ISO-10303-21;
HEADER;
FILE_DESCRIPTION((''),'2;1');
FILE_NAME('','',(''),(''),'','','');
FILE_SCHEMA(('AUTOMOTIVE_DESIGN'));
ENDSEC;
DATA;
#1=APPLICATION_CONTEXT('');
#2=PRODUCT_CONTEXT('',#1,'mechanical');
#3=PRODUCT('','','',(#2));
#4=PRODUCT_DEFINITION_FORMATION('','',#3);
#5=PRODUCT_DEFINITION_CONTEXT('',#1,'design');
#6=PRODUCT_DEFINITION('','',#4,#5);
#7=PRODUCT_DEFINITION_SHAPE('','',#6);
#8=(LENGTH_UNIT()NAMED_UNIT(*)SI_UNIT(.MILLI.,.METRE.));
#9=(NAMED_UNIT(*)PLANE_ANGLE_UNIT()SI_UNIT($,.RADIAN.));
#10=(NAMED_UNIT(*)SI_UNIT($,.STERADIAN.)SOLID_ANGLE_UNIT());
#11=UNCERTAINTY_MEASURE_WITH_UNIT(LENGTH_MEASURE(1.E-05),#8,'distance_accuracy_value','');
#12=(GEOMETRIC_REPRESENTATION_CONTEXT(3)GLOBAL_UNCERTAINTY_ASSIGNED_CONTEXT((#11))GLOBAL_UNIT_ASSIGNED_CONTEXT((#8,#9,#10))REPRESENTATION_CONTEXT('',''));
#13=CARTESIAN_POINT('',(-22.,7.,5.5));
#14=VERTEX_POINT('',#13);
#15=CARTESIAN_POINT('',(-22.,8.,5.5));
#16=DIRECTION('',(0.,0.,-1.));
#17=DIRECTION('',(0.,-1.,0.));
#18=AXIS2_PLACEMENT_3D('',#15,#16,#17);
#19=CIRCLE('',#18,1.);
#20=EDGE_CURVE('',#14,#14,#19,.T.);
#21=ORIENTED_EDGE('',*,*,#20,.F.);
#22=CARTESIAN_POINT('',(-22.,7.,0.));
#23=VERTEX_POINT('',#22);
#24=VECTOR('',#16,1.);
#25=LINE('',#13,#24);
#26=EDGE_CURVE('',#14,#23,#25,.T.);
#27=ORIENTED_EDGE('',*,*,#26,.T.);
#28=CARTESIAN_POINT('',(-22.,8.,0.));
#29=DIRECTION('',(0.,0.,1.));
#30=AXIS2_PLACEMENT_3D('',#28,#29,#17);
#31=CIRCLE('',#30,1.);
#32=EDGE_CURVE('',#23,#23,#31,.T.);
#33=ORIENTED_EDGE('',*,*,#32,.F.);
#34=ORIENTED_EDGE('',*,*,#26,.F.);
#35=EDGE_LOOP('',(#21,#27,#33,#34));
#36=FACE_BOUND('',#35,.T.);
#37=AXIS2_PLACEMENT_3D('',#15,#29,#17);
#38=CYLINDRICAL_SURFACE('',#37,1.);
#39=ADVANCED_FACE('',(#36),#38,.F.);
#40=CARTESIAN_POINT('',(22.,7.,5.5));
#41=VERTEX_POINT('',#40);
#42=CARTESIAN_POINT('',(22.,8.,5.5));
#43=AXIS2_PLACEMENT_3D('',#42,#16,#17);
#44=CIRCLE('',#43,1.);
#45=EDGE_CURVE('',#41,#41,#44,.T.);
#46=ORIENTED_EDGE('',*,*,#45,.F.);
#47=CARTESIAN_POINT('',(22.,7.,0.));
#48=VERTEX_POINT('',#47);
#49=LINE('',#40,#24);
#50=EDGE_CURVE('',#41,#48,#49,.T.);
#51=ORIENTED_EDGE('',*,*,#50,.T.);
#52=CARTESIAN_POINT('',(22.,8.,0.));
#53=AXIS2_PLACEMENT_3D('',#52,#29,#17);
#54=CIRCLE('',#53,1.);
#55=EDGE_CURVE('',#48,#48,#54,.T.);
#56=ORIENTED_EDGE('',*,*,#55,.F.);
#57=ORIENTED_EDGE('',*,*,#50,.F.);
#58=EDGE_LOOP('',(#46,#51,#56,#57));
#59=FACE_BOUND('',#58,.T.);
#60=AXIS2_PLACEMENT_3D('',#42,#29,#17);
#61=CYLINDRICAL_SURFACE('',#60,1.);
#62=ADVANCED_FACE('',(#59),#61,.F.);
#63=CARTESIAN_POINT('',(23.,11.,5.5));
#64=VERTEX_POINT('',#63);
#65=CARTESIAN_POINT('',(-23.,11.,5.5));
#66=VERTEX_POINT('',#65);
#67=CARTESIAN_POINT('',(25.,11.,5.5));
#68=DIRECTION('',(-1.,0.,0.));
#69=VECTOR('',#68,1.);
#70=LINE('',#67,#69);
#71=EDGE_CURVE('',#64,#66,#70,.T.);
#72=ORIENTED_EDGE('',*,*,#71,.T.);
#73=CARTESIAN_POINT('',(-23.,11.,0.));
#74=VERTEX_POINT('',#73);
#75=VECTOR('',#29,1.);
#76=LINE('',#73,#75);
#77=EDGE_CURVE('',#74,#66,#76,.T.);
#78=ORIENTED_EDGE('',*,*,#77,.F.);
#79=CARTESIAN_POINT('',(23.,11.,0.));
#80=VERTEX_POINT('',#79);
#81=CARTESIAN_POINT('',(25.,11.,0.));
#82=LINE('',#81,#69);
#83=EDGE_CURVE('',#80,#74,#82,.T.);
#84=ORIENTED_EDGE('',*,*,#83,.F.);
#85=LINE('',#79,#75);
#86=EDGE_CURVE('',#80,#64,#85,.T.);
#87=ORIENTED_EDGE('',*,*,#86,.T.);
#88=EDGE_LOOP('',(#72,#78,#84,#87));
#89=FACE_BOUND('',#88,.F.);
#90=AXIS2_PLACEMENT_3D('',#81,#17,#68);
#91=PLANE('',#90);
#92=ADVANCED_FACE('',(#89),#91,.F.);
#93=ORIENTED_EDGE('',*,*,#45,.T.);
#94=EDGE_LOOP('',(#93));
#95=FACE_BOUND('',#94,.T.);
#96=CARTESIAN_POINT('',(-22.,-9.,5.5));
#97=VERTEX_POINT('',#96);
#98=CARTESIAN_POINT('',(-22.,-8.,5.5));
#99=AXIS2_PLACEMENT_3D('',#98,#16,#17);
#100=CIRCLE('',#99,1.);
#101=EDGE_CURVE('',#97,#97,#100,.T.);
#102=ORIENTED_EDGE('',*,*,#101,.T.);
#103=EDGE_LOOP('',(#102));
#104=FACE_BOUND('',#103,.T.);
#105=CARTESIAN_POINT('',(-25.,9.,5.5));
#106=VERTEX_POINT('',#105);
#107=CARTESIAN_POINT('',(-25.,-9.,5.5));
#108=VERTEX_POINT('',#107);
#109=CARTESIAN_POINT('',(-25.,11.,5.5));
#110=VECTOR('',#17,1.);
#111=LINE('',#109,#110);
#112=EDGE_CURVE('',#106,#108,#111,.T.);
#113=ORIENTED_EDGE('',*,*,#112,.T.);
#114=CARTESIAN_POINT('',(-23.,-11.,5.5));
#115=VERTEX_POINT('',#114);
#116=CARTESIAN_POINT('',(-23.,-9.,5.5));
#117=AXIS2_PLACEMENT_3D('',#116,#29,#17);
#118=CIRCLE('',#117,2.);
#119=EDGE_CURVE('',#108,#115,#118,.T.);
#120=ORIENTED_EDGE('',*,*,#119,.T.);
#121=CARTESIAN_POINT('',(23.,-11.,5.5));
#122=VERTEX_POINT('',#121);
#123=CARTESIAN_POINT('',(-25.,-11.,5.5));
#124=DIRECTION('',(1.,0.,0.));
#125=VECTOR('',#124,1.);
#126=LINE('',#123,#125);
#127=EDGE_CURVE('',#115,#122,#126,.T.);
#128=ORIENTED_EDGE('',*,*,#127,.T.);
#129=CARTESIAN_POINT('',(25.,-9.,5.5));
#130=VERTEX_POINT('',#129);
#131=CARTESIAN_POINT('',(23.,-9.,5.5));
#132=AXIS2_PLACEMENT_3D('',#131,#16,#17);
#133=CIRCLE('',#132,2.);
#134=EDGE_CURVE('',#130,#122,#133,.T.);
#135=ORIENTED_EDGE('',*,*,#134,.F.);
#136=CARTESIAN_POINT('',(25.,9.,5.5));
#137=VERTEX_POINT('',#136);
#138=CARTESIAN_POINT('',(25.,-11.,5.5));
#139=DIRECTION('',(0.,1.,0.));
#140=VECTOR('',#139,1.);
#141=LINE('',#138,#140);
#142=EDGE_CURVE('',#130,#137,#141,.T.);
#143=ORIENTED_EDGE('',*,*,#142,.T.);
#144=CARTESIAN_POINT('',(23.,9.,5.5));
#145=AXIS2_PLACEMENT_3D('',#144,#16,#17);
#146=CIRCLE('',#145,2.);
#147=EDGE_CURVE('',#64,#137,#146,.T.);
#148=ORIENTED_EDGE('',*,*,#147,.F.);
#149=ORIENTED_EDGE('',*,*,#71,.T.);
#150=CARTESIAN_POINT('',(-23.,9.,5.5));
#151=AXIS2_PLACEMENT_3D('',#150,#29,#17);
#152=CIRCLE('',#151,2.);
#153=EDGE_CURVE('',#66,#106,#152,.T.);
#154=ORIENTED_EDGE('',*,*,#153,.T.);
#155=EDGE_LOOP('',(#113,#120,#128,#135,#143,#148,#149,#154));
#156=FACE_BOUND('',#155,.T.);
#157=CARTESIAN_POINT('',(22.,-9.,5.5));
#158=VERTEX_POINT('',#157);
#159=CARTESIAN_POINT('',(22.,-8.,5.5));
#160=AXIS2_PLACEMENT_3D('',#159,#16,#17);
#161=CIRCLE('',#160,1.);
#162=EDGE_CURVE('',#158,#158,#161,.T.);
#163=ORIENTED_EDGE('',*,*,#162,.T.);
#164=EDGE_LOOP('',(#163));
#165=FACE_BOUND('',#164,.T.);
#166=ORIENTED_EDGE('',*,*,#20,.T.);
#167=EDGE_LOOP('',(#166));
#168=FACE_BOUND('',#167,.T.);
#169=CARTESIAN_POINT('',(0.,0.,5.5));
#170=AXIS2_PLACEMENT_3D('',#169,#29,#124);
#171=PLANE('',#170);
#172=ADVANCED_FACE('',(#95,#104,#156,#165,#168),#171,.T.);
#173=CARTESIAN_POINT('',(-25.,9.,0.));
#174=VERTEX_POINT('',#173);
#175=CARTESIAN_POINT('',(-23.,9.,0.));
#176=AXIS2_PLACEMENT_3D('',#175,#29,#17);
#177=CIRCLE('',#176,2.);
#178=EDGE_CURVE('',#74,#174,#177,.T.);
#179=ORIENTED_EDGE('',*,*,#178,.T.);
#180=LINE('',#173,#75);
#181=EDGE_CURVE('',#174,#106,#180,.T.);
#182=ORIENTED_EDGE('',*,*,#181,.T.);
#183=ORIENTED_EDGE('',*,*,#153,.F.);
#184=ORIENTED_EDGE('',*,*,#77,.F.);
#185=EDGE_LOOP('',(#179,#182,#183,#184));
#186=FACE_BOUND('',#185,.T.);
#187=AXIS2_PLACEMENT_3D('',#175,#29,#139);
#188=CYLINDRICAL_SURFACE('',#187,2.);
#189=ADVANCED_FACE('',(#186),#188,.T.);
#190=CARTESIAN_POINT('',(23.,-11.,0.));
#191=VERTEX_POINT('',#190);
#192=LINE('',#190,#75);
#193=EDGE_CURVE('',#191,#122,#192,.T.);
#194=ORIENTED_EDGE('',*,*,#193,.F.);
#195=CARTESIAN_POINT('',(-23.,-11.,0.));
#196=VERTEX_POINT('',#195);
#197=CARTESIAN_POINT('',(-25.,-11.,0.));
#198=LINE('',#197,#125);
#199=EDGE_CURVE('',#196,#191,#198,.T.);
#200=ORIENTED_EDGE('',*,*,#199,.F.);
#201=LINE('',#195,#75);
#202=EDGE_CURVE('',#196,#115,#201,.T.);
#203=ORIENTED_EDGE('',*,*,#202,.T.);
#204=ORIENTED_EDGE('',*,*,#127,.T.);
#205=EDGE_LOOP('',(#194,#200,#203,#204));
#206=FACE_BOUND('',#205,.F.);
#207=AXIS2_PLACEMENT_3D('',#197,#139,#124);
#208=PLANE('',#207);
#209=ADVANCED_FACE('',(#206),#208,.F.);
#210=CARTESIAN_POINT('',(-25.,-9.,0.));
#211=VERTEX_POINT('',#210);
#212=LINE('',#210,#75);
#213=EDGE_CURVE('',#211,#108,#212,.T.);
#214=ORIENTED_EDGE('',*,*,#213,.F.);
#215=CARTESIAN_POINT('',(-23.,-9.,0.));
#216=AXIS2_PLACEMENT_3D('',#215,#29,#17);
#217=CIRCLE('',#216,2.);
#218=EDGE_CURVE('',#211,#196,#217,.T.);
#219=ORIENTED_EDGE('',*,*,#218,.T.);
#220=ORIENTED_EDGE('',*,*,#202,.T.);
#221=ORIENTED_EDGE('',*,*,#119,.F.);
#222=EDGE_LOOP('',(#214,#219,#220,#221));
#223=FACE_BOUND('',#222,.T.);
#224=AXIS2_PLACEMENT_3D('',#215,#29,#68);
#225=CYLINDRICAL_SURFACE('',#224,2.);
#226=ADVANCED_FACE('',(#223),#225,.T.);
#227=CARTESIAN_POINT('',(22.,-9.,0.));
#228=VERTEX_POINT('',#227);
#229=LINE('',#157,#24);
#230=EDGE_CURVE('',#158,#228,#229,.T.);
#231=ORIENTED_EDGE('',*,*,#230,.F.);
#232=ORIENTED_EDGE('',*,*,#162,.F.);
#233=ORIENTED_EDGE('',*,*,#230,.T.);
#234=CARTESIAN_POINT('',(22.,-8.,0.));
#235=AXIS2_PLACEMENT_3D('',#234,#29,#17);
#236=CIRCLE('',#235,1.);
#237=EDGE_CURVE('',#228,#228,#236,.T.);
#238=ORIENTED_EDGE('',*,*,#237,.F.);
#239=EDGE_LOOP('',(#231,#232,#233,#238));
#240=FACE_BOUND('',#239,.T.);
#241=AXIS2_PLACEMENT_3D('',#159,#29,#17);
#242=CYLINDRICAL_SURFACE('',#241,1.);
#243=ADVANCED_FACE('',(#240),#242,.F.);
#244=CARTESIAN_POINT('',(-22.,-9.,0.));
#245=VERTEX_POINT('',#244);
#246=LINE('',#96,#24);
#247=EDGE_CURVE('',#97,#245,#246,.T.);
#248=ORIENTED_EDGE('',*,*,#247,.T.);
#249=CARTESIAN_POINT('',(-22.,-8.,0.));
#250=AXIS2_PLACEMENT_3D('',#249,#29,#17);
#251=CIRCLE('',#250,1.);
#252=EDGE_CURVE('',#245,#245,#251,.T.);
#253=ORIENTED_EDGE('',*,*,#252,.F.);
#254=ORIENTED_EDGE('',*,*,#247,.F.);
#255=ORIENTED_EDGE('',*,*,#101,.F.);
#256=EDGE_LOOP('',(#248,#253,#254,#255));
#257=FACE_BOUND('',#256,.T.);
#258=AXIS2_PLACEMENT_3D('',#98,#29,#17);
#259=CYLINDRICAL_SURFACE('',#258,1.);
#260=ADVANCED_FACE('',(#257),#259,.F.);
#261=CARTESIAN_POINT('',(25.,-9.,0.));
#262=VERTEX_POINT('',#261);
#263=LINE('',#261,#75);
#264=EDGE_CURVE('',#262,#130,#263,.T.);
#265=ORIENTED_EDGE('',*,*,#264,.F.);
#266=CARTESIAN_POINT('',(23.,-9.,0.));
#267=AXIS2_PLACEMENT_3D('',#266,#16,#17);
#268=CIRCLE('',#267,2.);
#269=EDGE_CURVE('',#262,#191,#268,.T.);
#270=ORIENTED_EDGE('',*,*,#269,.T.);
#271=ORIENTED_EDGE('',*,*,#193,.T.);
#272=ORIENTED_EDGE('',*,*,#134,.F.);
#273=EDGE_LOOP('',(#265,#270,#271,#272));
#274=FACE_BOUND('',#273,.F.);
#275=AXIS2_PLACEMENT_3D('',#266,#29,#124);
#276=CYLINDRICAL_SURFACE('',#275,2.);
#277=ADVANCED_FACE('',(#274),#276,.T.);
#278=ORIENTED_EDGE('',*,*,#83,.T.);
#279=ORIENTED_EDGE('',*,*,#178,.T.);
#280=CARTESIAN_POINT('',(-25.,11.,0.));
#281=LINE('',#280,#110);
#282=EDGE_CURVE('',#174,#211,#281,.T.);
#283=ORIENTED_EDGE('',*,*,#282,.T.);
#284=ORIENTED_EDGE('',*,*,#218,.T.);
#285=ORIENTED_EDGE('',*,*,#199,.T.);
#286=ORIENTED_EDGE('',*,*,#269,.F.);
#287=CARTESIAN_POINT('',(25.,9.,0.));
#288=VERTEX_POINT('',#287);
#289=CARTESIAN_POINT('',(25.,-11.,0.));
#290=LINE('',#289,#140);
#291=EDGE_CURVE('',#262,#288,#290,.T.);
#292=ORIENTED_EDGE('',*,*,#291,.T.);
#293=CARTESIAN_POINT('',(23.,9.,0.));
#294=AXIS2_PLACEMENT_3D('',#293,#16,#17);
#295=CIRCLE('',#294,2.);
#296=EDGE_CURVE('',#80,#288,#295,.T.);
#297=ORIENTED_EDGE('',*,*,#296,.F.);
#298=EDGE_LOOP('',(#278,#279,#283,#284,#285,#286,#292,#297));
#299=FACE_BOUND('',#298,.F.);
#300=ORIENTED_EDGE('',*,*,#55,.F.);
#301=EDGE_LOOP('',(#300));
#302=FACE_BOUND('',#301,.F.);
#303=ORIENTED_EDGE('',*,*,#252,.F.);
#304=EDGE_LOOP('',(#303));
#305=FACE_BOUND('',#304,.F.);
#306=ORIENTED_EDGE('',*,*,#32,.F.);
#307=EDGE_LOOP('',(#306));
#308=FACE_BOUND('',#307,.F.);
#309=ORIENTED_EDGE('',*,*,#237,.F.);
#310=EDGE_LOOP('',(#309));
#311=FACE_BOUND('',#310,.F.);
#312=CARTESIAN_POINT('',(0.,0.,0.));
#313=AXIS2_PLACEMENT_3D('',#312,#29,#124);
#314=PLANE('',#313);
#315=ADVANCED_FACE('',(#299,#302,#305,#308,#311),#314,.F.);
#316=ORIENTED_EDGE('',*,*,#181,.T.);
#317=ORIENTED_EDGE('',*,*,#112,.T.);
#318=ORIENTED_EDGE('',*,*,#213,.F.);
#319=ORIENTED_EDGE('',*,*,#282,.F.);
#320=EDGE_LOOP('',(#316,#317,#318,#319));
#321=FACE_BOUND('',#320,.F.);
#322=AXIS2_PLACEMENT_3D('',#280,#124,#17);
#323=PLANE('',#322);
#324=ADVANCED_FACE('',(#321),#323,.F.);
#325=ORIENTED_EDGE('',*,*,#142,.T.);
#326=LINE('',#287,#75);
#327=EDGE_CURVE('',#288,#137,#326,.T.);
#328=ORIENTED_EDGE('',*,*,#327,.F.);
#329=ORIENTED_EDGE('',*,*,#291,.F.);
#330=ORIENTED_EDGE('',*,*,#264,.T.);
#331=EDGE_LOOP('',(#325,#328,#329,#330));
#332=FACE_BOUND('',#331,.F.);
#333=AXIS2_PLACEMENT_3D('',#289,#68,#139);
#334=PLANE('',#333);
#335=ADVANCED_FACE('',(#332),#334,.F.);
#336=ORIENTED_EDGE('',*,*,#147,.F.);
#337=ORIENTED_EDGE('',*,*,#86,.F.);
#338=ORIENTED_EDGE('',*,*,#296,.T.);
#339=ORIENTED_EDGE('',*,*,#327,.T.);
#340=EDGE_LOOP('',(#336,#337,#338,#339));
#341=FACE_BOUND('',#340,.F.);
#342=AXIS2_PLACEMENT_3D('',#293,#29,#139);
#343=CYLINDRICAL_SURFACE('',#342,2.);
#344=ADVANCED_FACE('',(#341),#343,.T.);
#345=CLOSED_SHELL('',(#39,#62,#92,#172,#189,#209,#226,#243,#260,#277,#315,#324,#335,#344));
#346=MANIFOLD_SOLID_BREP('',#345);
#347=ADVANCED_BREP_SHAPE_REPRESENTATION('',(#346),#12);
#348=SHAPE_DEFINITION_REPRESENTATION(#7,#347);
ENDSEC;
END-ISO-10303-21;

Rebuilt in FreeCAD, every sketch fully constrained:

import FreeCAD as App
import Part
import Sketcher
from FreeCAD import Vector


def edges_at(feature, points):
    """Names of the edges that pass closest to the given points."""
    edges = feature.Shape.Edges
    near = lambda p: min(range(len(edges)), key=lambda i: edges[i].distToShape(Part.Vertex(*p))[0])
    return sorted({f"Edge{near(p) + 1}" for p in points})

doc = App.newDocument("Part")
body = doc.addObject("PartDesign::Body", "Body")

# Sketch on XY plane
sketch1 = doc.addObject("Sketcher::SketchObject", "Sketch")
body.addObject(sketch1)
sketch1.AttachmentSupport = (doc.XY_Plane, [""])
sketch1.MapMode = "FlatFace"
sketch1.addGeometry([
    Part.LineSegment(Vector(25, -11, 0), Vector(25, 11, 0)),
    Part.LineSegment(Vector(25, 11, 0), Vector(-25, 11, 0)),
    Part.LineSegment(Vector(-25, 11, 0), Vector(-25, -11, 0)),
    Part.LineSegment(Vector(-25, -11, 0), Vector(25, -11, 0)),
], False)
sketch1.addConstraint([
    Sketcher.Constraint("Coincident", 0, 2, 1, 1),
    Sketcher.Constraint("Coincident", 1, 2, 2, 1),
    Sketcher.Constraint("Coincident", 2, 2, 3, 1),
    Sketcher.Constraint("Coincident", 3, 2, 0, 1),
    Sketcher.Constraint("Vertical", 0),
    Sketcher.Constraint("Horizontal", 1),
    Sketcher.Constraint("Vertical", 2),
    Sketcher.Constraint("Horizontal", 3),
    Sketcher.Constraint("Symmetric", 0, 2, 2, 2, -1, 1),
    Sketcher.Constraint("DistanceX", -1, 1, 0, 2, 25.0),
    Sketcher.Constraint("DistanceY", 0, 1, 0, 2, 22.0),
])
pad1 = doc.addObject("PartDesign::Pad", "Pad")
body.addObject(pad1)
pad1.Profile = sketch1
pad1.Length = 5.5

# Sketch on XY plane
sketch2 = doc.addObject("Sketcher::SketchObject", "Sketch001")
body.addObject(sketch2)
sketch2.AttachmentSupport = (doc.XY_Plane, [""])
sketch2.MapMode = "FlatFace"
sketch2.AttachmentOffset = App.Placement(Vector(0, 0, 5.5), App.Rotation())
sketch2.addGeometry(Part.Circle(Vector(-22, 8, 0), Vector(0, 0, 1), 1), False)
sketch2.addConstraint([
    Sketcher.Constraint("Diameter", 0, 2.0),
    Sketcher.Constraint("DistanceX", 0, 3, -1, 1, 22.0),
    Sketcher.Constraint("DistanceY", -1, 1, 0, 3, 8.0),
])
doc.recompute()
hole = doc.addObject("PartDesign::Hole", "Hole")
body.addObject(hole)
hole.Profile = sketch2
hole.ThreadType = "None"
hole.Diameter = 2
hole.DepthType = "ThroughAll"

# Sketch on XY plane
sketch3 = doc.addObject("Sketcher::SketchObject", "Sketch002")
body.addObject(sketch3)
sketch3.AttachmentSupport = (doc.XY_Plane, [""])
sketch3.MapMode = "FlatFace"
sketch3.AttachmentOffset = App.Placement(Vector(0, 0, 5.5), App.Rotation())
sketch3.addGeometry(Part.Circle(Vector(-22, -8, 0), Vector(0, 0, 1), 1), False)
sketch3.addConstraint([
    Sketcher.Constraint("Diameter", 0, 2.0),
    Sketcher.Constraint("DistanceX", 0, 3, -1, 1, 22.0),
    Sketcher.Constraint("DistanceY", 0, 3, -1, 1, 8.0),
])
doc.recompute()
hole2 = doc.addObject("PartDesign::Hole", "Hole001")
body.addObject(hole2)
hole2.Profile = sketch3
hole2.ThreadType = "None"
hole2.Diameter = 2
hole2.DepthType = "ThroughAll"

# Sketch on XY plane
sketch4 = doc.addObject("Sketcher::SketchObject", "Sketch003")
body.addObject(sketch4)
sketch4.AttachmentSupport = (doc.XY_Plane, [""])
sketch4.MapMode = "FlatFace"
sketch4.AttachmentOffset = App.Placement(Vector(0, 0, 5.5), App.Rotation())
sketch4.addGeometry(Part.Circle(Vector(22, -8, 0), Vector(0, 0, 1), 1), False)
sketch4.addConstraint([
    Sketcher.Constraint("Diameter", 0, 2.0),
    Sketcher.Constraint("DistanceX", -1, 1, 0, 3, 22.0),
    Sketcher.Constraint("DistanceY", 0, 3, -1, 1, 8.0),
])
doc.recompute()
hole3 = doc.addObject("PartDesign::Hole", "Hole002")
body.addObject(hole3)
hole3.Profile = sketch4
hole3.ThreadType = "None"
hole3.Diameter = 2
hole3.DepthType = "ThroughAll"

# Sketch on XY plane
sketch5 = doc.addObject("Sketcher::SketchObject", "Sketch004")
body.addObject(sketch5)
sketch5.AttachmentSupport = (doc.XY_Plane, [""])
sketch5.MapMode = "FlatFace"
sketch5.AttachmentOffset = App.Placement(Vector(0, 0, 5.5), App.Rotation())
sketch5.addGeometry(Part.Circle(Vector(22, 8, 0), Vector(0, 0, 1), 1), False)
sketch5.addConstraint([
    Sketcher.Constraint("Diameter", 0, 2.0),
    Sketcher.Constraint("DistanceX", -1, 1, 0, 3, 22.0),
    Sketcher.Constraint("DistanceY", -1, 1, 0, 3, 8.0),
])
doc.recompute()
hole4 = doc.addObject("PartDesign::Hole", "Hole003")
body.addObject(hole4)
hole4.Profile = sketch5
hole4.ThreadType = "None"
hole4.Diameter = 2
hole4.DepthType = "ThroughAll"
doc.recompute()

fillet = doc.addObject("PartDesign::Fillet", "Fillet")
body.addObject(fillet)
fillet.Base = (hole4, edges_at(hole4, [
    (-25, 11, 2.75),
    (-25, -11, 2.75),
    (25, -11, 2.75),
    (25, 11, 2.75),
]))
fillet.Radius = 2

doc.recompute()
